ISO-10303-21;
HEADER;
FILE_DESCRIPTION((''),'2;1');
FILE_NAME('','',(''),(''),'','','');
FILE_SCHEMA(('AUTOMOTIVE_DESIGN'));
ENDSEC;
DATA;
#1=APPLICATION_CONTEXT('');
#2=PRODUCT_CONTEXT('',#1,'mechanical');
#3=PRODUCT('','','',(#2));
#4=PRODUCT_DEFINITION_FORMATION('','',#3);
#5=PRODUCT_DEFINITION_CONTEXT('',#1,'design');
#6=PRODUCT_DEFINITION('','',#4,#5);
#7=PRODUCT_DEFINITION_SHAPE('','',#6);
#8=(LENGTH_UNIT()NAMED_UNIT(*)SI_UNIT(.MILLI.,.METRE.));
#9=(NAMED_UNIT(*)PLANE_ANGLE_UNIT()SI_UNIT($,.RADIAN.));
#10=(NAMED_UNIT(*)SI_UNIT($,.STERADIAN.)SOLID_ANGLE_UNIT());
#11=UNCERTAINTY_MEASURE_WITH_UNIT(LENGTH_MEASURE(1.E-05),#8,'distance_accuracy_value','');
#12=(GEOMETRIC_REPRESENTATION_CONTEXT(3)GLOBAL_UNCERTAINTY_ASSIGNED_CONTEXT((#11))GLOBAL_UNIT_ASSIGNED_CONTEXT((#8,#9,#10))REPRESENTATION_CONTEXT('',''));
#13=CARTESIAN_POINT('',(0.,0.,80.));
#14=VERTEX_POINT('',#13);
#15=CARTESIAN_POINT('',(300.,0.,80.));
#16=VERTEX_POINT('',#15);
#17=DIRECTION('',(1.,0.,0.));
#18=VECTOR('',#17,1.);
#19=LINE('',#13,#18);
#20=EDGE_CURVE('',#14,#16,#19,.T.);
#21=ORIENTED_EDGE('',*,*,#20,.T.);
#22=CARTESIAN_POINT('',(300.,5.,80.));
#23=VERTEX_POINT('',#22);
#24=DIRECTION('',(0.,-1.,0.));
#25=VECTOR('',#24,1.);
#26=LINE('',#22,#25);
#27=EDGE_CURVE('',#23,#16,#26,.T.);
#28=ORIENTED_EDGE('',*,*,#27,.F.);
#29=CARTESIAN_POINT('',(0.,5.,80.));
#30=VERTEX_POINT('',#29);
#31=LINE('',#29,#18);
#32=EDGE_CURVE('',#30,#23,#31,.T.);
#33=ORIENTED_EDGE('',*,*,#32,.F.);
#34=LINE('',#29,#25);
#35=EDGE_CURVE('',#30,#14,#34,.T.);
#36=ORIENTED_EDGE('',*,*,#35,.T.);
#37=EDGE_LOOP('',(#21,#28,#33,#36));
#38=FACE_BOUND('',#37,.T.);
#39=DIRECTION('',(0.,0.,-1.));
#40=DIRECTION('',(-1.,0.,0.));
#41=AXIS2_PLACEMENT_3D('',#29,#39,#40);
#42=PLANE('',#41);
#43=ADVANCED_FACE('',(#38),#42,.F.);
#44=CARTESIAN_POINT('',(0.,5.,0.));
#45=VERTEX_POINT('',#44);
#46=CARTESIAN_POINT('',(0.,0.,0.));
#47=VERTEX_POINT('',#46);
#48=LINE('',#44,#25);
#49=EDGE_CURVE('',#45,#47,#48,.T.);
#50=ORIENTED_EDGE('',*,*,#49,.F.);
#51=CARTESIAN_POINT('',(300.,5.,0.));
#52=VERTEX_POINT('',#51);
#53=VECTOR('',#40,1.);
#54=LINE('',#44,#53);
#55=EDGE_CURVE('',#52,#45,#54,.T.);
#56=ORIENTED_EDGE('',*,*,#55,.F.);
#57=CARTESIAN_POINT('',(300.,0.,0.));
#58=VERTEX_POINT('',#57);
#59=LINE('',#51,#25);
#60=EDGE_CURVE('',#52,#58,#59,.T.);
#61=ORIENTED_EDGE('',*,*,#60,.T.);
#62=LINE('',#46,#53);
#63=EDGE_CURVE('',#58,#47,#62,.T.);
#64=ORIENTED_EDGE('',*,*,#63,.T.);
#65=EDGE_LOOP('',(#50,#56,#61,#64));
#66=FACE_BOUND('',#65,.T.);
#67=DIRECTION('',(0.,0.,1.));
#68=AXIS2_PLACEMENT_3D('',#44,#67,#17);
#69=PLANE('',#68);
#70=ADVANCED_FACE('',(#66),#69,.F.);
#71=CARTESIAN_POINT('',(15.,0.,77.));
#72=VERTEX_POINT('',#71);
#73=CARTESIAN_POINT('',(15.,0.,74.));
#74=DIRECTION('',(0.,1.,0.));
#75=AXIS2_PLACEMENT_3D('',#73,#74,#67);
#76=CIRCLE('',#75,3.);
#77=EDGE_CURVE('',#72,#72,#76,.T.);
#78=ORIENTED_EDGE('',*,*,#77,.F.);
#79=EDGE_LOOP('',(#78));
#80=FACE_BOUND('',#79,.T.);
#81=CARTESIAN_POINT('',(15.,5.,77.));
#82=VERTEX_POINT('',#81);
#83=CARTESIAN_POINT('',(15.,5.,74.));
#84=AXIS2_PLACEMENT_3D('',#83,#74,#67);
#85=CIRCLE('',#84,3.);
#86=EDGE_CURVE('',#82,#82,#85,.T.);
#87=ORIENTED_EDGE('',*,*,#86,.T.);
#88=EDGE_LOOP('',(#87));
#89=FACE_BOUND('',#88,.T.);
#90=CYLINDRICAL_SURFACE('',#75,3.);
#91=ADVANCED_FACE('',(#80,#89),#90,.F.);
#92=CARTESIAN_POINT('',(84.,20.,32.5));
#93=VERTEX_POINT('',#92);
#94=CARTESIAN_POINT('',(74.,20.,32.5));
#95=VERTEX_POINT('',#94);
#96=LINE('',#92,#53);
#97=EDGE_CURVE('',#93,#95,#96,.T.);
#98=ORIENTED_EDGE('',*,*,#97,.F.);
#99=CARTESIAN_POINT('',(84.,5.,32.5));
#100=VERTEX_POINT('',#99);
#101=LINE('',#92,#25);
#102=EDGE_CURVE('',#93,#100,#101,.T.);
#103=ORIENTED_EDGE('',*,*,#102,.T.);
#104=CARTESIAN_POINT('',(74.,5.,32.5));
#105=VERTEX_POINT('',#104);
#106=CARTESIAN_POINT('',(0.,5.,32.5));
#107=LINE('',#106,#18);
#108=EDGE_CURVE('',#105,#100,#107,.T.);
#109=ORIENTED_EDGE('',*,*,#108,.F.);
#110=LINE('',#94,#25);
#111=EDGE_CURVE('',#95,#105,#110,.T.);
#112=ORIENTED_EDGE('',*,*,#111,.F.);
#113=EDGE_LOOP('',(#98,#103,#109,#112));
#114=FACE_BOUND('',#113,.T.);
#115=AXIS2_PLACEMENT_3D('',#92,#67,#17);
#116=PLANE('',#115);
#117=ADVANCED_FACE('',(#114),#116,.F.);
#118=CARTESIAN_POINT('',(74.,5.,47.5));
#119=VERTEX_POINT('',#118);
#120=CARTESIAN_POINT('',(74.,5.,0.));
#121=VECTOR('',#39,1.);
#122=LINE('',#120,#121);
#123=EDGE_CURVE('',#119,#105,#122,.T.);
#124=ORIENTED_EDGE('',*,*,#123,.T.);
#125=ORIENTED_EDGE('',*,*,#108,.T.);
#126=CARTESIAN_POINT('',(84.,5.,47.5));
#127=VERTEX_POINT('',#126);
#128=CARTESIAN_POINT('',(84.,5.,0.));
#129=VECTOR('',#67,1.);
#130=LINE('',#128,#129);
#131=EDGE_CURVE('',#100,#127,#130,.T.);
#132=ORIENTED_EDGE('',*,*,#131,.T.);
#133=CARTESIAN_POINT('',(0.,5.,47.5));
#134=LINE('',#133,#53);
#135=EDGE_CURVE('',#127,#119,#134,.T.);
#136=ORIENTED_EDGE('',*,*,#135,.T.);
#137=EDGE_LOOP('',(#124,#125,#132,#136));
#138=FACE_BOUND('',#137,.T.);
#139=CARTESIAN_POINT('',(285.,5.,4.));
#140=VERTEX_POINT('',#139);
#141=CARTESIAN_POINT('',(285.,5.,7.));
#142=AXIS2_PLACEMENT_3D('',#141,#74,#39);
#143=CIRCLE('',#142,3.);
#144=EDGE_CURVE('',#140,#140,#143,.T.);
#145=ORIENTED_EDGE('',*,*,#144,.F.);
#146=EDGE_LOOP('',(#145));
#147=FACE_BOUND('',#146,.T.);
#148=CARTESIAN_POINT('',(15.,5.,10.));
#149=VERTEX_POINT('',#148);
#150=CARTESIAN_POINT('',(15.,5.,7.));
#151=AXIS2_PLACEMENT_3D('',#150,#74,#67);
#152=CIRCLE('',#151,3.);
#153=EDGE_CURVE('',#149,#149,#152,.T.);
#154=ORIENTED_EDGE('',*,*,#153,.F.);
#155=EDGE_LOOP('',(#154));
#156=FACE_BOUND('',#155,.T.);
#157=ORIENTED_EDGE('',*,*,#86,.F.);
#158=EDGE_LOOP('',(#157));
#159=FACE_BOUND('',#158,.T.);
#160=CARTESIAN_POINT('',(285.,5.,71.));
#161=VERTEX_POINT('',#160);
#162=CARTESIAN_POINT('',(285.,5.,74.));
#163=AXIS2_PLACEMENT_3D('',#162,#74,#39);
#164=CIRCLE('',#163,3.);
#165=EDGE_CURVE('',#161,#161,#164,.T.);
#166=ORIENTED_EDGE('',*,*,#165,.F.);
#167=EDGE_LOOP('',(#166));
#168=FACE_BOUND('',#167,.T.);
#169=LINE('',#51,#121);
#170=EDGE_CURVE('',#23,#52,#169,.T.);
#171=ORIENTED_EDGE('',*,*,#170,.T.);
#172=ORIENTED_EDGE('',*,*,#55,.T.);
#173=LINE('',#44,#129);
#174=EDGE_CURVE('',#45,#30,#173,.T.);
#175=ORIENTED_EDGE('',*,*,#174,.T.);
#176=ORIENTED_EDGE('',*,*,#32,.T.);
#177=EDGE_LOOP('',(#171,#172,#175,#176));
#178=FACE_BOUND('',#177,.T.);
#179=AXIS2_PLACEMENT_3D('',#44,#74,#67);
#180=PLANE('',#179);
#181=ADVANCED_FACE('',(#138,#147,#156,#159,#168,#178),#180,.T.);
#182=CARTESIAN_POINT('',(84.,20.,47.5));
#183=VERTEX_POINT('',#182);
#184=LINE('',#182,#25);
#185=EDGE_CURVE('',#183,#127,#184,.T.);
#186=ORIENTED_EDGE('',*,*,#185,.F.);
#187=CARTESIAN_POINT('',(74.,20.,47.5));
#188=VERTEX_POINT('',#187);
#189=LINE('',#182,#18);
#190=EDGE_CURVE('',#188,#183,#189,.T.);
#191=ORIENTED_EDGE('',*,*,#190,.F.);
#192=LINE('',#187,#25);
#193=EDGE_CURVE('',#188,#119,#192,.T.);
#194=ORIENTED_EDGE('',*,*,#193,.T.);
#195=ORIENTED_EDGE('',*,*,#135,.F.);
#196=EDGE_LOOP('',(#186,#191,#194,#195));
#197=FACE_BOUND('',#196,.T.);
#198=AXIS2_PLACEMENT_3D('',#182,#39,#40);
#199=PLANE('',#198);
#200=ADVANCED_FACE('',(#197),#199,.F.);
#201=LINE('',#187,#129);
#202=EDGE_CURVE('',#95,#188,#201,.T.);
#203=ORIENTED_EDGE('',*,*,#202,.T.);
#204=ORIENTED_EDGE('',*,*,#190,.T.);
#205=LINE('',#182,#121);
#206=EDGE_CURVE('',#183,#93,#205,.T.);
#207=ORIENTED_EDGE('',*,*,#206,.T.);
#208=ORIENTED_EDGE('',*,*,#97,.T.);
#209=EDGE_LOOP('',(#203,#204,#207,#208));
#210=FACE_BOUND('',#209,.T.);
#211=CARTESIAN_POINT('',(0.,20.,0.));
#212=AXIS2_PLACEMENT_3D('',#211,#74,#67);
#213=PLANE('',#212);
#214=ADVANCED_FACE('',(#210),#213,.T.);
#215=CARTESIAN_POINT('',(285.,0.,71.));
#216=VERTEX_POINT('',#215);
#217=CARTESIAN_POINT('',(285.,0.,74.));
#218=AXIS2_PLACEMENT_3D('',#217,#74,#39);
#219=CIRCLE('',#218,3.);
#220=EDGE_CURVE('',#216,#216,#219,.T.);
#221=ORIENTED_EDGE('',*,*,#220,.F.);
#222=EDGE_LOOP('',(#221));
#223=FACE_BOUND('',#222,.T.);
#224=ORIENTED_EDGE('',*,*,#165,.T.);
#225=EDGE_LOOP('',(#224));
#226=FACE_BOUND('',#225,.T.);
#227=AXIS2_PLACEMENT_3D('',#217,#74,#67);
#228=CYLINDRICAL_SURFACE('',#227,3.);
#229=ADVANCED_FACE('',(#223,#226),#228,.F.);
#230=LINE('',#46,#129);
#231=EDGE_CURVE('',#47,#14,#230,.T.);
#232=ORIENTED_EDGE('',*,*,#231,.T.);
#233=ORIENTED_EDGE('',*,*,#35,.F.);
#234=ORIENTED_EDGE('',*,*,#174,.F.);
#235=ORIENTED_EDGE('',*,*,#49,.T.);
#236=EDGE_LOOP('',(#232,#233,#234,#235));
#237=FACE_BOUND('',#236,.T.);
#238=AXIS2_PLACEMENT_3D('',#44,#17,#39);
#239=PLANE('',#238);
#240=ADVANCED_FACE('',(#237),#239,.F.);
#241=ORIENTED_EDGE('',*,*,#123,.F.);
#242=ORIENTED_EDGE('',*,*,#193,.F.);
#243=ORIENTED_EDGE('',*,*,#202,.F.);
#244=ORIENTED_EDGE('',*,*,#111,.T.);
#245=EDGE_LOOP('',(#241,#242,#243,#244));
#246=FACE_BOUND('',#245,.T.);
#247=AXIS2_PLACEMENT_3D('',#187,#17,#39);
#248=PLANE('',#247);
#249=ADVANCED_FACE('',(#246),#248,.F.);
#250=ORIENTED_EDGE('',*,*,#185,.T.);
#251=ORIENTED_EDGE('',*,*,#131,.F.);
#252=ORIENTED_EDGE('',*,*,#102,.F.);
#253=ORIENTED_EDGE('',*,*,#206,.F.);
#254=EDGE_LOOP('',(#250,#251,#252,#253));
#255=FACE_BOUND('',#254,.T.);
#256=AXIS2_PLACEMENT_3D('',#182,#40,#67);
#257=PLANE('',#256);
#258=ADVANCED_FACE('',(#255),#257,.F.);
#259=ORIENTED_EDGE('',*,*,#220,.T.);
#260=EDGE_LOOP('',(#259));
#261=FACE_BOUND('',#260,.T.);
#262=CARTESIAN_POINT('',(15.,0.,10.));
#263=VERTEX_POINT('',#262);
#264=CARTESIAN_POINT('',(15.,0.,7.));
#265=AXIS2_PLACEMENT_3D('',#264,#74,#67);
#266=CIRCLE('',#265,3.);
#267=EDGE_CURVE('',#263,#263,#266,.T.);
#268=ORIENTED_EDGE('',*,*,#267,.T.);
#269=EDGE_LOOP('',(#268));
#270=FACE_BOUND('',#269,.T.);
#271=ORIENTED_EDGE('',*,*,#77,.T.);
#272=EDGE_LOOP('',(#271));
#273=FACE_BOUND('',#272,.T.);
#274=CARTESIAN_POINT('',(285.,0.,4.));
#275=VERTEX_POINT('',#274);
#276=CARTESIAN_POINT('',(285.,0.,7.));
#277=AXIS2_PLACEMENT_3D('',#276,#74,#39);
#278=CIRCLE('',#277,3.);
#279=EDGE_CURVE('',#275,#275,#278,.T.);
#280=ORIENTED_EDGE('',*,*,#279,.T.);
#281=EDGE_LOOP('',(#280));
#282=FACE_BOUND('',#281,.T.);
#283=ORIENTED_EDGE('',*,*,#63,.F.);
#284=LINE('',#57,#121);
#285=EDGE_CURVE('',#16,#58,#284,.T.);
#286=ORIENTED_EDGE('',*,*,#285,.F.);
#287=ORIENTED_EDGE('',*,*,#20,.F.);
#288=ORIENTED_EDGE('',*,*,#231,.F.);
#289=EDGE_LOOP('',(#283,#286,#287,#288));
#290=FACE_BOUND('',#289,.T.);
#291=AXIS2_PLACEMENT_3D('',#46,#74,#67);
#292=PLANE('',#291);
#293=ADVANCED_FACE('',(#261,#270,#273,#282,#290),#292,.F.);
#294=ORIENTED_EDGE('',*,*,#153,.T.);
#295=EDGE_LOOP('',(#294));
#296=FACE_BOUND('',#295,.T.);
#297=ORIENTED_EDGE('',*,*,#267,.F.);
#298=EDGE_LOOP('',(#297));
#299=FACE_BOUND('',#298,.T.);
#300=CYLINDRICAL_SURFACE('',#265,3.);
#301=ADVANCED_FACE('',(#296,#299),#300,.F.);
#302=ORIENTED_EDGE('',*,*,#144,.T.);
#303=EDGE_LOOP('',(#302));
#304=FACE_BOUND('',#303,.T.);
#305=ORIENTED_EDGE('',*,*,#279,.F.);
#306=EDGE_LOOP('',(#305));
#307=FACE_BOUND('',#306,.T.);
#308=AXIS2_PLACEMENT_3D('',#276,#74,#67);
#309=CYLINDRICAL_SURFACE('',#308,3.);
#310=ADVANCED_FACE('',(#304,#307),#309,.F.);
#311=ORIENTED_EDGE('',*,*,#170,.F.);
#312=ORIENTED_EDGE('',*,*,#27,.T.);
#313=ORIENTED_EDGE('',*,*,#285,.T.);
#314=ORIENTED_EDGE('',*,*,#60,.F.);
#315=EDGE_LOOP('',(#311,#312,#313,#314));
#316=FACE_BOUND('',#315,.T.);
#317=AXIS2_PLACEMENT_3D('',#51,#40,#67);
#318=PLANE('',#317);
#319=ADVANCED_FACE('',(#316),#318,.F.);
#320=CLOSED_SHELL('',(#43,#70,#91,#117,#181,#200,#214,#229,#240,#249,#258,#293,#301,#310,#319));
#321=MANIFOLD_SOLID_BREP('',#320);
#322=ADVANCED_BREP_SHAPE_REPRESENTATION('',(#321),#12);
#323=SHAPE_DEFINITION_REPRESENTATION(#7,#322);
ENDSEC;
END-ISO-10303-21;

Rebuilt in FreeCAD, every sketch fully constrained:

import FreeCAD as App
import Part
import Sketcher
from FreeCAD import Vector


def add_polygon(sketch, points):
    """Adds a closed chain of lines whose ends are joined by coincident constraints."""
    first, n = sketch.GeometryCount, len(points)
    for a, b in zip(points, points[1:] + points[:1]):
        sketch.addGeometry(Part.LineSegment(App.Vector(*a, 0), App.Vector(*b, 0)), False)
    for i in range(n):
        sketch.addConstraint(Sketcher.Constraint("Coincident", first + i, 2, first + (i + 1) % n, 1))

doc = App.newDocument("Part")
body = doc.addObject("PartDesign::Body", "Body")

# Sketch on XZ plane
sketch1 = body.newObject("Sketcher::SketchObject", "Sketch")
sketch1.AttachmentSupport = (doc.getObject("XZ_Plane"), [""])
sketch1.MapMode = "FlatFace"
add_polygon(sketch1, [(0, 0), (0, 80), (300, 80), (300, 0)])  # lines 0-3
sketch1.addConstraint([
    Sketcher.Constraint("Vertical", 0),
    Sketcher.Constraint("Horizontal", 1),
    Sketcher.Constraint("Vertical", 2),
    Sketcher.Constraint("Horizontal", 3),
    Sketcher.Constraint("Coincident", 3, 2, -1, 1),
    Sketcher.Constraint("DistanceX", 1, 1, 1, 2, 300.0),
    Sketcher.Constraint("DistanceY", 0, 1, 0, 2, 80.0),
])
pad1 = body.newObject("PartDesign::Pad", "Pad")
pad1.Profile = sketch1
pad1.Length = 5
pad1.Reversed = True

# Sketch on XZ plane
sketch2 = body.newObject("Sketcher::SketchObject", "Sketch001")
sketch2.AttachmentSupport = (doc.getObject("XZ_Plane"), [""])
sketch2.MapMode = "FlatFace"
sketch2.AttachmentOffset = App.Placement(Vector(0, 0, -5), App.Rotation())
sketch2.addGeometry([
    Part.Circle(Vector(15, 7, 0), Vector(0, 0, 1), 3),
    Part.Circle(Vector(15, 74, 0), Vector(0, 0, 1), 3),
    Part.Circle(Vector(285, 7, 0), Vector(0, 0, 1), 3),
    Part.Circle(Vector(285, 74, 0), Vector(0, 0, 1), 3),
], False)
sketch2.addConstraint([
    Sketcher.Constraint("Equal", 0, 1),
    Sketcher.Constraint("Equal", 1, 2),
    Sketcher.Constraint("Equal", 2, 3),
    Sketcher.Constraint("Horizontal", 0, 3, 2, 3),
    Sketcher.Constraint("Horizontal", 1, 3, 3, 3),
    Sketcher.Constraint("Vertical", 0, 3, 1, 3),
    Sketcher.Constraint("Vertical", 2, 3, 3, 3),
    Sketcher.Constraint("Diameter", 0, 6.0),
    Sketcher.Constraint("DistanceX", -1, 1, 0, 3, 15.0),
    Sketcher.Constraint("DistanceY", -1, 1, 0, 3, 7.0),
    Sketcher.Constraint("DistanceY", -1, 1, 1, 3, 74.0),
    Sketcher.Constraint("DistanceX", -1, 1, 2, 3, 285.0),
])
pocket1 = body.newObject("PartDesign::Pocket", "Pocket")
pocket1.Profile = sketch2
pocket1.Length = 5
pocket1.Reversed = True

# Sketch on XZ plane
sketch3 = body.newObject("Sketcher::SketchObject", "Sketch002")
sketch3.AttachmentSupport = (doc.getObject("XZ_Plane"), [""])
sketch3.MapMode = "FlatFace"
add_polygon(sketch3, [(74, 32), (74, 48), (84, 48), (84, 32)])  # lines 0-3
sketch3.addConstraint([
    Sketcher.Constraint("Vertical", 0),
    Sketcher.Constraint("Horizontal", 1),
    Sketcher.Constraint("Vertical", 2),
    Sketcher.Constraint("Horizontal", 3),
    Sketcher.Constraint("DistanceX", 1, 1, 1, 2, 10.0),
    Sketcher.Constraint("DistanceY", 0, 1, 0, 2, 15.0),
    Sketcher.Constraint("DistanceX", -1, 1, 0, 2, 74.0),
    Sketcher.Constraint("DistanceY", -1, 1, 0, 2, 47.5),
])
pad2 = body.newObject("PartDesign::Pad", "Pad001")
pad2.Profile = sketch3
pad2.Length = 20
pad2.Reversed = True

doc.recompute()
